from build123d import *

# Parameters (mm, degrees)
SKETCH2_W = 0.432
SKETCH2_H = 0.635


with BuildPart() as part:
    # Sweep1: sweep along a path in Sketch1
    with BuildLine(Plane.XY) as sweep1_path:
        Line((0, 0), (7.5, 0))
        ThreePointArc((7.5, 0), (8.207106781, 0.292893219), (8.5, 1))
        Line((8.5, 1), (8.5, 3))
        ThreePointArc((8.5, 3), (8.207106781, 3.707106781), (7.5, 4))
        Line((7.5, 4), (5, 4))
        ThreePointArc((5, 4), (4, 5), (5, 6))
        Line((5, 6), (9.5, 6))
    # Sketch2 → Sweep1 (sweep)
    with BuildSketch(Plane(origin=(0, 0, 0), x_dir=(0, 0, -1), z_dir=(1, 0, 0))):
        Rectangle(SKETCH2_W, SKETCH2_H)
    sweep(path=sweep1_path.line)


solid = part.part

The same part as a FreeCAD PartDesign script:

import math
import FreeCAD as App
import Part
import Sketcher
from FreeCAD import Vector

doc = App.newDocument("Part")
params = doc.addObject("Spreadsheet::Sheet", "Params")
for row, (alias, value) in enumerate([
    ("sketch2_radius", "1 mm"),
    ("sketch2_height", "2 mm"),
    ("sketch2_width", "7.5 mm"),
    ("sketch2_width2", "2.5 mm"),
    ("sketch2_width3", "4.5 mm"),
], start=1):
    params.set(f"A{row}", alias)
    params.set(f"B{row}", "=" + value)
    params.setAlias(f"B{row}", alias)

body = doc.addObject("PartDesign::Body", "Body")

# Sketch on YZ plane
sketch1 = doc.addObject("Sketcher::SketchObject", "Sketch")
body.addObject(sketch1)
sketch1.AttachmentSupport = (doc.YZ_Plane, [""])
sketch1.MapMode = "FlatFace"
sketch1.addGeometry([
    Part.LineSegment(Vector(0.32, 0.22, 0), Vector(-0.32, 0.22, 0)),
    Part.LineSegment(Vector(-0.32, 0.22, 0), Vector(-0.32, -0.22, 0)),
    Part.LineSegment(Vector(-0.32, -0.22, 0), Vector(0.32, -0.22, 0)),
    Part.LineSegment(Vector(0.32, -0.22, 0), Vector(0.32, 0.22, 0)),
], False)
sketch1.addConstraint([
    Sketcher.Constraint("Coincident", 0, 2, 1, 1),
    Sketcher.Constraint("Coincident", 1, 2, 2, 1),
    Sketcher.Constraint("Coincident", 2, 2, 3, 1),
    Sketcher.Constraint("Coincident", 3, 2, 0, 1),
    Sketcher.Constraint("Horizontal", 0),
    Sketcher.Constraint("Vertical", 1),
    Sketcher.Constraint("Horizontal", 2),
    Sketcher.Constraint("Vertical", 3),
    Sketcher.Constraint("Symmetric", 0, 2, 2, 2, -1, 1),
    Sketcher.Constraint("DistanceX", 0, 2, 0, 1, 0.635),
    Sketcher.Constraint("DistanceY", 1, 2, 1, 1, 0.432),
])

# Sketch on XY plane
sketch2 = doc.addObject("Sketcher::SketchObject", "Sketch001")
body.addObject(sketch2)
sketch2.AttachmentSupport = (doc.XY_Plane, [""])
sketch2.MapMode = "FlatFace"
sketch2.addGeometry([
    Part.LineSegment(Vector(0, 0, 0), Vector(7.5, 0, 0)),  # 0
    Part.ArcOfCircle(Part.Circle(Vector(7.5, 1, 0), Vector(0, 0, 1), 1), math.radians(-90), math.radians(0)),  # 1
    Part.LineSegment(Vector(8.5, 1, 0), Vector(8.5, 3, 0)),  # 2
    Part.ArcOfCircle(Part.Circle(Vector(7.5, 3, 0), Vector(0, 0, 1), 1), math.radians(0), math.radians(90)),  # 3
    Part.LineSegment(Vector(7.5, 4, 0), Vector(5, 4, 0)),  # 4
    Part.ArcOfCircle(Part.Circle(Vector(5, 5, 0), Vector(0, 0, 1), 1), math.radians(90), math.radians(270)),  # 5
    Part.LineSegment(Vector(5, 6, 0), Vector(9.5, 6, 0)),  # 6
], False)
sketch2.addConstraint([
    Sketcher.Constraint("Tangent", 0, 2, 1, 1),
    Sketcher.Constraint("Tangent", 1, 2, 2, 1),
    Sketcher.Constraint("Tangent", 2, 2, 3, 1),
    Sketcher.Constraint("Tangent", 3, 2, 4, 1),
    Sketcher.Constraint("Tangent", 4, 2, 5, 2),
    Sketcher.Constraint("Tangent", 5, 1, 6, 1),
    Sketcher.Constraint("Horizontal", 0),
    Sketcher.Constraint("Vertical", 2),
    Sketcher.Constraint("Horizontal", 4),
    Sketcher.Constraint("Horizontal", 6),
    Sketcher.Constraint("Coincident", 0, 1, -1, 1),
    Sketcher.Constraint("Equal", 1, 3),
    Sketcher.Constraint("Equal", 3, 5),
    Sketcher.Constraint("Radius", 1, 1.0),
    Sketcher.Constraint("DistanceY", 2, 1, 2, 2, 2.0),
    Sketcher.Constraint("DistanceX", 0, 1, 0, 2, 7.5),
    Sketcher.Constraint("DistanceX", 4, 2, 4, 1, 2.5),
    Sketcher.Constraint("DistanceX", 6, 1, 6, 2, 4.5),
])
sketch2.setExpression("Constraints[13]", "Params.sketch2_radius")
sketch2.setExpression("Constraints[14]", "Params.sketch2_height")
sketch2.setExpression("Constraints[15]", "Params.sketch2_width")
sketch2.setExpression("Constraints[16]", "Params.sketch2_width2")
sketch2.setExpression("Constraints[17]", "Params.sketch2_width3")
doc.recompute()

additivepipe = doc.addObject("PartDesign::AdditivePipe", "AdditivePipe")
body.addObject(additivepipe)
additivepipe.Profile = sketch1
additivepipe.Spine = (sketch2, ["Edge1", "Edge2", "Edge3", "Edge4", "Edge5", "Edge6", "Edge7"])

doc.recompute()
